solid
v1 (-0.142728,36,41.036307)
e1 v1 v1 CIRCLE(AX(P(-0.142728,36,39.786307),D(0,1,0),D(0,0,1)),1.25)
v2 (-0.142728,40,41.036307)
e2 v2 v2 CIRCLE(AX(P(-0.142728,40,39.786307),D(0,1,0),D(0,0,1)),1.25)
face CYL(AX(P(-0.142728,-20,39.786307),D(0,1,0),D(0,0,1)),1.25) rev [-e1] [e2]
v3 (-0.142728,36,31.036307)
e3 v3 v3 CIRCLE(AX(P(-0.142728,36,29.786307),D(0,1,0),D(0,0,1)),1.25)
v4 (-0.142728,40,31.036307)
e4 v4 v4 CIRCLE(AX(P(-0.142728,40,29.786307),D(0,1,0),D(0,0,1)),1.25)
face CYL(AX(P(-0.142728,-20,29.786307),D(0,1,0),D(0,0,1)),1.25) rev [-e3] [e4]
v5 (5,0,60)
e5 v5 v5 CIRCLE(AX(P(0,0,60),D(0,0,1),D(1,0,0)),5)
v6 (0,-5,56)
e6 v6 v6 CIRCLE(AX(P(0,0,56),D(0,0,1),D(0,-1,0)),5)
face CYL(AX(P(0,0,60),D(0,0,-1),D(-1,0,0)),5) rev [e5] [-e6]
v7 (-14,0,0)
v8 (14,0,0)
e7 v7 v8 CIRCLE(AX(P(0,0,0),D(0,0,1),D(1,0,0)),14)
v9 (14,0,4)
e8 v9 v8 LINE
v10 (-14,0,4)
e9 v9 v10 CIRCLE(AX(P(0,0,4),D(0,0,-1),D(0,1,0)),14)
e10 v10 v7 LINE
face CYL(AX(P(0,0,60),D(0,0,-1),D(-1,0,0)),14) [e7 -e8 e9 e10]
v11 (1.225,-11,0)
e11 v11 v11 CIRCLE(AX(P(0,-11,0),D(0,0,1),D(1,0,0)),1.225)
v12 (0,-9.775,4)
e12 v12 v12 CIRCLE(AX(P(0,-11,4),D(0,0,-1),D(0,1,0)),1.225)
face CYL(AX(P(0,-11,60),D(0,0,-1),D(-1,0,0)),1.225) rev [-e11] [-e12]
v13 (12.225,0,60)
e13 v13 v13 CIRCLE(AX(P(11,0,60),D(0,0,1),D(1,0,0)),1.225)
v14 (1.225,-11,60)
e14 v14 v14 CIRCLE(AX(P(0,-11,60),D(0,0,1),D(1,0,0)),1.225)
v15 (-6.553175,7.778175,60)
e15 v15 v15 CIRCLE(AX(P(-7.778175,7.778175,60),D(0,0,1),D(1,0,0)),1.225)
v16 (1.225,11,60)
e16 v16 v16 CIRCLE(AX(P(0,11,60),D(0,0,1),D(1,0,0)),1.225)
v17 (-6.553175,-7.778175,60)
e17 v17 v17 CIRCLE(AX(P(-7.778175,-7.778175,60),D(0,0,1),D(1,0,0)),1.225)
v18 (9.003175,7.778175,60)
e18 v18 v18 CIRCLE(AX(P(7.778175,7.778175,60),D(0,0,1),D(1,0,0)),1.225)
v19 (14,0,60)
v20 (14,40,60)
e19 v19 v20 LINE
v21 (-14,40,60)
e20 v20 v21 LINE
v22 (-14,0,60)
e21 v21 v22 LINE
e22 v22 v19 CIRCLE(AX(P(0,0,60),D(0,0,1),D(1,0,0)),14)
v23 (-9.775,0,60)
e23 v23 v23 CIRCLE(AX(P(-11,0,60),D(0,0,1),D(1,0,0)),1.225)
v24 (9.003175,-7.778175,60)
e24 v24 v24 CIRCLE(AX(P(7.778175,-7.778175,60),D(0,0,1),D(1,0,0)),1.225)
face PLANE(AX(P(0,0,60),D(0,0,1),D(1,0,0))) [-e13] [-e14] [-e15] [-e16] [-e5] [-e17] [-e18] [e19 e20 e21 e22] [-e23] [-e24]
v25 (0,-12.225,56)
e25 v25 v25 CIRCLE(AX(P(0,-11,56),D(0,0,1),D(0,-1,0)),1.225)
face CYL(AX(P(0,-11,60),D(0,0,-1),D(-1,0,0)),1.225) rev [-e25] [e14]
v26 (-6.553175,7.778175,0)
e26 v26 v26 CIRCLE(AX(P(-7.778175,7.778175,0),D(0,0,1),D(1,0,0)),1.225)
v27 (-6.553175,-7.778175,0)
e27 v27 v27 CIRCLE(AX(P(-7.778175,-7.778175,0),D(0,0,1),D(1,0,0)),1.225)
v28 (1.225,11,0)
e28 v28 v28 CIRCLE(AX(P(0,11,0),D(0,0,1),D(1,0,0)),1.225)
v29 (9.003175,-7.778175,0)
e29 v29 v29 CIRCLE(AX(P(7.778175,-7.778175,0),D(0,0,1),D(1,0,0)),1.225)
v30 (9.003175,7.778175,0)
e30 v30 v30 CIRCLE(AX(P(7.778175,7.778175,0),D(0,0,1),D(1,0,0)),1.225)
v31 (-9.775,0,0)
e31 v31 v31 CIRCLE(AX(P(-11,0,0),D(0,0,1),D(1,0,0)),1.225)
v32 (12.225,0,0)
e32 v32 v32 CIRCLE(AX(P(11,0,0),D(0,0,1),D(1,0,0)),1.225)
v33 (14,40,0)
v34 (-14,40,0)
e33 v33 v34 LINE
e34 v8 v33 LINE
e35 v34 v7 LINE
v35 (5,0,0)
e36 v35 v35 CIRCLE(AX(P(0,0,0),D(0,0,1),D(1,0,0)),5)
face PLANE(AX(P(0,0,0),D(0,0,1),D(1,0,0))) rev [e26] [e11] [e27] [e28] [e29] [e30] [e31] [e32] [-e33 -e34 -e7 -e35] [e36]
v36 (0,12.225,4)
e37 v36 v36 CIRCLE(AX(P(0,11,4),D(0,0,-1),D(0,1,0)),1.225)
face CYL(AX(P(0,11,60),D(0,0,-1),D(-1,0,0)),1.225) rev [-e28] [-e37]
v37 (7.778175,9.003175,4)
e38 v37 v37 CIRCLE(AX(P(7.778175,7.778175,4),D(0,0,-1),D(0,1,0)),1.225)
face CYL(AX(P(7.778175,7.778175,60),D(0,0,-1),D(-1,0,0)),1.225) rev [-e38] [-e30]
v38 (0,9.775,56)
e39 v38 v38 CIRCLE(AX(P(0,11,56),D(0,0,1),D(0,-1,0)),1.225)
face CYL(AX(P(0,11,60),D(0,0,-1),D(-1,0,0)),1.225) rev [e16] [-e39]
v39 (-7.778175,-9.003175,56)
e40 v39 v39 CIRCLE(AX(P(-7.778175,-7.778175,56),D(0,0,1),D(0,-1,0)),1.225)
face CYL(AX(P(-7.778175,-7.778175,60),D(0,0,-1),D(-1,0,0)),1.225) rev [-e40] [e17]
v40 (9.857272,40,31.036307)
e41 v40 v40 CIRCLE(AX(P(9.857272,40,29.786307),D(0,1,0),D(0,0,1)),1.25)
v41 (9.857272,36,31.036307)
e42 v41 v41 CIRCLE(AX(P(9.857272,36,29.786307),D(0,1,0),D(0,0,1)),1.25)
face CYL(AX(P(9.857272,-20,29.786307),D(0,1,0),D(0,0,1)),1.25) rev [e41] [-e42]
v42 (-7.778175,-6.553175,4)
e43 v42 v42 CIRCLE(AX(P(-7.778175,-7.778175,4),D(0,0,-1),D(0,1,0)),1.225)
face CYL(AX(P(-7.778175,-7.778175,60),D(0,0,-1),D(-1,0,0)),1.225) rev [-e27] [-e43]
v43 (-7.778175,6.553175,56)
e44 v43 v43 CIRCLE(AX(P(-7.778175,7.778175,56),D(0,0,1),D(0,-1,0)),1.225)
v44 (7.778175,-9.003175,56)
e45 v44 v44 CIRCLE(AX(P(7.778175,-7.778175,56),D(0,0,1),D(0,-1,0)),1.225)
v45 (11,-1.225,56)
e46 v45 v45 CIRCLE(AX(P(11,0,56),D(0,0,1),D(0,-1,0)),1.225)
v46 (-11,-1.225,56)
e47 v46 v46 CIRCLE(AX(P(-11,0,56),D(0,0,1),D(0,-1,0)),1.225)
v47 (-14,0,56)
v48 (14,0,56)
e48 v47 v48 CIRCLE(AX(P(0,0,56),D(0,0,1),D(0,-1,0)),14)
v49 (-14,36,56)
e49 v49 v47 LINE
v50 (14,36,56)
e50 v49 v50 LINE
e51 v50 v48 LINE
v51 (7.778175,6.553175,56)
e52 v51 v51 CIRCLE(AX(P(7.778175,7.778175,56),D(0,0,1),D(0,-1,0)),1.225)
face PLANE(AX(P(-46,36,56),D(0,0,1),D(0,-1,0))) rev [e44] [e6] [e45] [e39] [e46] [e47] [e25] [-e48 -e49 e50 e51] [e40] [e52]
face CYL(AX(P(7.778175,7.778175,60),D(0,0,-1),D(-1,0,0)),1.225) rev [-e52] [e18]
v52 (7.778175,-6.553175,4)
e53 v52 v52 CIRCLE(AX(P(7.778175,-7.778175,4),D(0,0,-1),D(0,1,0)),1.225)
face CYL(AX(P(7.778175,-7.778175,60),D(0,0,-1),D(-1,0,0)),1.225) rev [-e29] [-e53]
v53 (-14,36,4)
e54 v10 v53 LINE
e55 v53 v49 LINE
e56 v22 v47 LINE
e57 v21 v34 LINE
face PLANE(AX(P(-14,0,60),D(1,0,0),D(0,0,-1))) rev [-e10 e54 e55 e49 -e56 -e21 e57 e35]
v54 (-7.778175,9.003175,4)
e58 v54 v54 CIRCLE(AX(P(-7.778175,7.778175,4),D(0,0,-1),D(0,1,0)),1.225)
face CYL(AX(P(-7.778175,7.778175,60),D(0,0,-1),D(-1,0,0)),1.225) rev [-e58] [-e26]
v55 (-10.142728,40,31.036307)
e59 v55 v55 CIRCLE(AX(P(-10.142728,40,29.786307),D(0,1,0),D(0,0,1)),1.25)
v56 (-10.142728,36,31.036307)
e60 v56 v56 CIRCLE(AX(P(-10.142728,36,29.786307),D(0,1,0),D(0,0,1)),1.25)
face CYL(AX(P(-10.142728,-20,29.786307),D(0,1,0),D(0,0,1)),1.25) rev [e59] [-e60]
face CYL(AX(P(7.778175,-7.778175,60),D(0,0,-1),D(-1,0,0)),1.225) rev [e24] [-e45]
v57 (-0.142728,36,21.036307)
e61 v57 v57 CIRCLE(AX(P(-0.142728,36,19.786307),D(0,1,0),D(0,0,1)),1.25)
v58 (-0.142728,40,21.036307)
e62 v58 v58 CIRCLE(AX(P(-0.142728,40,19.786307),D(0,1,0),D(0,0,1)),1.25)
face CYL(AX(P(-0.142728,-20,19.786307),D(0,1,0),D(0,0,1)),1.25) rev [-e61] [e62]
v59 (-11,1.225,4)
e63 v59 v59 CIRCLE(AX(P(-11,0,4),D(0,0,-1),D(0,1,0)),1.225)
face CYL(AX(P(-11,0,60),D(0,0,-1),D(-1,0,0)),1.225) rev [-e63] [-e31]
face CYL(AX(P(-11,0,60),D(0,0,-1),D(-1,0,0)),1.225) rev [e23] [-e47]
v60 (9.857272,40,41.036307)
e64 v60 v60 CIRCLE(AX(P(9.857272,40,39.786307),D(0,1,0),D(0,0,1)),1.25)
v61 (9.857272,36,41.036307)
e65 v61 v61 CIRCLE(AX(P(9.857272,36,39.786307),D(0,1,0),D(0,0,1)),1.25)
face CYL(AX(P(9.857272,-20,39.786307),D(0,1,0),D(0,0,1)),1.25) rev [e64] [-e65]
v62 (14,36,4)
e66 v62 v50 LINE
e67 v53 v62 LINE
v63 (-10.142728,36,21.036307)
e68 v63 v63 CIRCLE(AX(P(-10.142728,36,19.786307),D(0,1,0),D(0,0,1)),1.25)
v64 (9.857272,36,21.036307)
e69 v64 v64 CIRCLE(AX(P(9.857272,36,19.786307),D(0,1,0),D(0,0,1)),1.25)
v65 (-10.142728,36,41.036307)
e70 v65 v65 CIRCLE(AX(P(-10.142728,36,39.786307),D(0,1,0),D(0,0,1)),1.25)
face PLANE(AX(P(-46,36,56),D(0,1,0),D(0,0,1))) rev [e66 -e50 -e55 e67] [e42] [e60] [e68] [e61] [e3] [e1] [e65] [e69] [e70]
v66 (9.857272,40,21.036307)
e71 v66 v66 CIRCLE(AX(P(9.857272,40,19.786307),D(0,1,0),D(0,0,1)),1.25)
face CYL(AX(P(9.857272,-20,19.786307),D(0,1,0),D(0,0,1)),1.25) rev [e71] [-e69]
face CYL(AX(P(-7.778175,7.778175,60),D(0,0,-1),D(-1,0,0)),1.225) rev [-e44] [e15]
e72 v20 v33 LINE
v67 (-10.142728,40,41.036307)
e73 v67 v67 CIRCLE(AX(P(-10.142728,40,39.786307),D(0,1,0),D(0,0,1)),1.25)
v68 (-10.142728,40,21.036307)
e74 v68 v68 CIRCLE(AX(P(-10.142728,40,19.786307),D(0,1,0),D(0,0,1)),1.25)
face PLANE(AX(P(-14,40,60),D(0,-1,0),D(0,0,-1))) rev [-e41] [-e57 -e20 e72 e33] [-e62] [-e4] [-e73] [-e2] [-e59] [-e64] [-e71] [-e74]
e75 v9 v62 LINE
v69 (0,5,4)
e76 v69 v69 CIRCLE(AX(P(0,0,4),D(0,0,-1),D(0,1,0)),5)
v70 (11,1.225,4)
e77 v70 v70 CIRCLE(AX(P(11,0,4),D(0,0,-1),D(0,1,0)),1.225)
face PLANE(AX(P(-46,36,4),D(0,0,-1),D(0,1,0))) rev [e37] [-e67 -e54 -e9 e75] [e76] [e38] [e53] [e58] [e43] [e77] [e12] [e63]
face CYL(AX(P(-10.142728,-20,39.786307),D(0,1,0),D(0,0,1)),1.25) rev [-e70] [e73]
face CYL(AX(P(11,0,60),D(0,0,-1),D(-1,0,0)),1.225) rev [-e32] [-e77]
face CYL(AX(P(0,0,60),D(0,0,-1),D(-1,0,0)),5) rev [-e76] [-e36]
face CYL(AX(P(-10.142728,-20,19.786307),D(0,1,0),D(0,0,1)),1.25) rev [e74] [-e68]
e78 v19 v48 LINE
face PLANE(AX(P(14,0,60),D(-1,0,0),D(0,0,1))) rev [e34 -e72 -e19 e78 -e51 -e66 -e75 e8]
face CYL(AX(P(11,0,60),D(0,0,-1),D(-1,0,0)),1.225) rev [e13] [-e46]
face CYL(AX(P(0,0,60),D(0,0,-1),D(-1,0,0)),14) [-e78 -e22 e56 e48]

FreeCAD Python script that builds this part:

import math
import FreeCAD as App
import Part
import Sketcher
from FreeCAD import Vector

doc = App.newDocument("Part")
params = doc.addObject("Spreadsheet::Sheet", "Params")
for row, (alias, value) in enumerate([
    ("sketch1_diameter", "10 mm"),
    ("sketch1_radius", "14 mm"),
    ("sketch1_diameter2", "2.45 mm"),
    ("sketch1_height", "40 mm"),
    ("pad1_length", "60 mm"),
    ("sketch2_width", "50 mm"),
    ("sketch2_height", "52 mm"),
    ("pocket1_length", "60 mm"),
    ("sketch3_diameter", "2.5 mm"),
    ("pocket2_length", "60 mm"),
], start=1):
    params.set(f"A{row}", alias)
    params.set(f"B{row}", "=" + value)
    params.setAlias(f"B{row}", alias)

body = doc.addObject("PartDesign::Body", "Body")

sketch1 = body.newObject("Sketcher::SketchObject", "Sketch")
sketch1.AttachmentSupport = (doc.getObject("XY_Plane"), [""])
sketch1.MapMode = "FlatFace"
sketch1.addGeometry([
    Part.LineSegment(Vector(-14, 40, 0), Vector(-14, 0, 0)),
    Part.ArcOfCircle(Part.Circle(Vector(0, 0, 0), Vector(0, 0, 1), 14), math.radians(180), math.radians(360)),
    Part.LineSegment(Vector(14, 0, 0), Vector(14, 40, 0)),
    Part.LineSegment(Vector(14, 40, 0), Vector(-14, 40, 0)),
    Part.Circle(Vector(7.8, -7.8, 0), Vector(0, 0, 1), 1.2),
    Part.Circle(Vector(0, -11, 0), Vector(0, 0, 1), 1.2),
    Part.Circle(Vector(-7.8, -7.8, 0), Vector(0, 0, 1), 1.2),
    Part.Circle(Vector(11, 0, 0), Vector(0, 0, 1), 1.2),
    Part.Circle(Vector(7.8, 7.8, 0), Vector(0, 0, 1), 1.2),
    Part.Circle(Vector(0, 0, 0), Vector(0, 0, 1), 5),
    Part.Circle(Vector(-11, 0, 0), Vector(0, 0, 1), 1.2),
    Part.Circle(Vector(0, 11, 0), Vector(0, 0, 1), 1.2),
    Part.Circle(Vector(-7.8, 7.8, 0), Vector(0, 0, 1), 1.2),
], False)
sketch1.addConstraint([
    Sketcher.Constraint("Tangent", 0, 2, 1, 1),
    Sketcher.Constraint("Tangent", 1, 2, 2, 1),
    Sketcher.Constraint("Coincident", 2, 2, 3, 1),
    Sketcher.Constraint("Coincident", 3, 2, 0, 1),
    Sketcher.Constraint("Vertical", 0),
    Sketcher.Constraint("Vertical", 2),
    Sketcher.Constraint("Horizontal", 3),
    Sketcher.Constraint("Coincident", 1, 3, -1, 1),
    Sketcher.Constraint("Coincident", 9, 3, -1, 1),
    Sketcher.Constraint("Equal", 4, 5),
    Sketcher.Constraint("Equal", 5, 6),
    Sketcher.Constraint("Equal", 6, 7),
    Sketcher.Constraint("Equal", 7, 8),
    Sketcher.Constraint("Equal", 8, 10),
    Sketcher.Constraint("Equal", 10, 11),
    Sketcher.Constraint("Equal", 11, 12),
    Sketcher.Constraint("Symmetric", 6, 3, 8, 3, -1, 1),
    Sketcher.Constraint("Symmetric", 7, 3, 10, 3, -1, 1),
    Sketcher.Constraint("Symmetric", 5, 3, 11, 3, -1, 1),
    Sketcher.Constraint("Symmetric", 4, 3, 12, 3, -1, 1),
    Sketcher.Constraint("Symmetric", 4, 3, 6, 3, -2),
    Sketcher.Constraint("PointOnObject", 5, 3, -2),
    Sketcher.Constraint("PointOnObject", 7, 3, -1),
    Sketcher.Constraint("Diameter", 9, 10.0),
    Sketcher.Constraint("Radius", 1, 14.0),
    Sketcher.Constraint("Diameter", 4, 2.45),
    Sketcher.Constraint("DistanceY", 0, 2, 0, 1, 40.0),
    Sketcher.Constraint("DistanceY", 5, 3, -1, 1, 11.0),
    Sketcher.Constraint("DistanceX", -1, 1, 7, 3, 11.0),
    Sketcher.Constraint("DistanceX", 6, 3, 4, 3, 15.556349),
    Sketcher.Constraint("DistanceY", 4, 3, 8, 3, 15.556349),
])
sketch1.setExpression("Constraints[23]", "Params.sketch1_diameter")
sketch1.setExpression("Constraints[24]", "Params.sketch1_radius")
sketch1.setExpression("Constraints[25]", "Params.sketch1_diameter2")
sketch1.setExpression("Constraints[26]", "Params.sketch1_height")
pad1 = body.newObject("PartDesign::Pad", "Pad")
pad1.Profile = sketch1
pad1.setExpression("Length", "Params.pad1_length")

sketch2 = body.newObject("Sketcher::SketchObject", "Sketch001")
sketch2.AttachmentSupport = (doc.getObject("YZ_Plane"), [""])
sketch2.MapMode = "FlatFace"
sketch2.AttachmentOffset = App.Placement(Vector(0, 0, 14), App.Rotation())
sketch2.addGeometry([
    Part.LineSegment(Vector(36, 56, 0), Vector(-14, 56, 0)),
    Part.LineSegment(Vector(-14, 56, 0), Vector(-14, 4, 0)),
    Part.LineSegment(Vector(-14, 4, 0), Vector(36, 4, 0)),
    Part.LineSegment(Vector(36, 4, 0), Vector(36, 56, 0)),
], False)
sketch2.addConstraint([
    Sketcher.Constraint("Coincident", 0, 2, 1, 1),
    Sketcher.Constraint("Coincident", 1, 2, 2, 1),
    Sketcher.Constraint("Coincident", 2, 2, 3, 1),
    Sketcher.Constraint("Coincident", 3, 2, 0, 1),
    Sketcher.Constraint("Horizontal", 0),
    Sketcher.Constraint("Vertical", 1),
    Sketcher.Constraint("Horizontal", 2),
    Sketcher.Constraint("Vertical", 3),
    Sketcher.Constraint("DistanceX", 0, 2, 0, 1, 50.0),
    Sketcher.Constraint("DistanceY", 1, 2, 1, 1, 52.0),
    Sketcher.Constraint("DistanceX", 0, 2, -1, 1, 14.0),
    Sketcher.Constraint("DistanceY", -1, 1, 0, 2, 56.0),
])
sketch2.setExpression("Constraints[8]", "Params.sketch2_width")
sketch2.setExpression("Constraints[9]", "Params.sketch2_height")
pocket1 = body.newObject("PartDesign::Pocket", "Pocket")
pocket1.Profile = sketch2
pocket1.setExpression("Length", "Params.pocket1_length")

sketch3 = body.newObject("Sketcher::SketchObject", "Sketch002")
sketch3.AttachmentSupport = (doc.getObject("XZ_Plane"), [""])
sketch3.MapMode = "FlatFace"
sketch3.AttachmentOffset = App.Placement(Vector(0, 0, -40), App.Rotation())
sketch3.addGeometry([
    Part.Circle(Vector(-10.1, 39.8, 0), Vector(0, 0, 1), 1.2),
    Part.Circle(Vector(-10.1, 19.8, 0), Vector(0, 0, 1), 1.2),
    Part.Circle(Vector(-10.1, 29.8, 0), Vector(0, 0, 1), 1.2),
    Part.Circle(Vector(-0.1, 39.8, 0), Vector(0, 0, 1), 1.2),
    Part.Circle(Vector(-0.1, 29.8, 0), Vector(0, 0, 1), 1.2),
    Part.Circle(Vector(-0.1, 19.8, 0), Vector(0, 0, 1), 1.2),
    Part.Circle(Vector(9.9, 19.8, 0), Vector(0, 0, 1), 1.2),
    Part.Circle(Vector(9.9, 29.8, 0), Vector(0, 0, 1), 1.2),
    Part.Circle(Vector(9.9, 39.8, 0), Vector(0, 0, 1), 1.2),
], False)
sketch3.addConstraint([
    Sketcher.Constraint("Equal", 0, 1),
    Sketcher.Constraint("Equal", 1, 2),
    Sketcher.Constraint("Equal", 2, 3),
    Sketcher.Constraint("Equal", 3, 4),
    Sketcher.Constraint("Equal", 4, 5),
    Sketcher.Constraint("Equal", 5, 6),
    Sketcher.Constraint("Equal", 6, 7),
    Sketcher.Constraint("Equal", 7, 8),
    Sketcher.Constraint("Horizontal", 0, 3, 3, 3),
    Sketcher.Constraint("Horizontal", 2, 3, 4, 3),
    Sketcher.Constraint("Horizontal", 1, 3, 5, 3),
    Sketcher.Constraint("Horizontal", 5, 3, 6, 3),
    Sketcher.Constraint("Horizontal", 4, 3, 7, 3),
    Sketcher.Constraint("Horizontal", 3, 3, 8, 3),
    Sketcher.Constraint("Vertical", 0, 3, 1, 3),
    Sketcher.Constraint("Vertical", 1, 3, 2, 3),
    Sketcher.Constraint("Vertical", 3, 3, 4, 3),
    Sketcher.Constraint("Vertical", 4, 3, 5, 3),
    Sketcher.Constraint("Vertical", 6, 3, 7, 3),
    Sketcher.Constraint("Vertical", 7, 3, 8, 3),
    Sketcher.Constraint("Diameter", 0, 2.5),
    Sketcher.Constraint("DistanceY", 1, 3, 0, 3, 20.0),
    Sketcher.Constraint("DistanceY", 2, 3, 0, 3, 10.0),
    Sketcher.Constraint("DistanceX", 0, 3, 3, 3, 10.0),
    Sketcher.Constraint("DistanceX", 5, 3, 6, 3, 10.0),
    Sketcher.Constraint("DistanceX", 0, 3, -1, 1, 10.142728),
    Sketcher.Constraint("DistanceY", -1, 1, 0, 3, 39.786307),
])
sketch3.setExpression("Constraints[20]", "Params.sketch3_diameter")
pocket2 = body.newObject("PartDesign::Pocket", "Pocket001")
pocket2.Profile = sketch3
pocket2.setExpression("Length", "Params.pocket2_length")
pocket2.Reversed = True

doc.recompute()
